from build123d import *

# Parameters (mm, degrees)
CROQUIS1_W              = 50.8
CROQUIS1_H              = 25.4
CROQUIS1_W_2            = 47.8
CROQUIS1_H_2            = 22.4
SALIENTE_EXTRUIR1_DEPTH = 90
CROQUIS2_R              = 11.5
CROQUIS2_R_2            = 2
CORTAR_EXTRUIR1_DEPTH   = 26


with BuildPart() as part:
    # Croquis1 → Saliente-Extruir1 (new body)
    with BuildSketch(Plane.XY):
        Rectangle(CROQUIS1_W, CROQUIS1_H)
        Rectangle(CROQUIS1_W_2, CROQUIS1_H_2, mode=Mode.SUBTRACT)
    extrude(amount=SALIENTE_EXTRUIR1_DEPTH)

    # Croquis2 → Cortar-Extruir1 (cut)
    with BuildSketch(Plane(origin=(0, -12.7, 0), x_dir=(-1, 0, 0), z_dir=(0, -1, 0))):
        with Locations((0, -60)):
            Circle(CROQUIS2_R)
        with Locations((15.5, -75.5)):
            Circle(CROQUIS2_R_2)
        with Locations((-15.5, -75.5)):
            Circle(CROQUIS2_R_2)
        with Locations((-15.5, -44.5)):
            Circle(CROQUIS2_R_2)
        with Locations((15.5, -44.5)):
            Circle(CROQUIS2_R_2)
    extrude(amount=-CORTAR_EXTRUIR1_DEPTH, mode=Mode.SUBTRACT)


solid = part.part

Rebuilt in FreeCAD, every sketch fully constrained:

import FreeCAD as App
import Part
import Sketcher
from FreeCAD import Vector
Q = App.Units.Quantity

doc = App.newDocument("Part")
params = doc.addObject("Spreadsheet::Sheet", "Params")
for row, (alias, value) in enumerate([
    ("sketch1_width", "50.8 mm"),
    ("sketch1_width2", "47.8 mm"),
    ("sketch1_height", "25.4 mm"),
    ("sketch1_height2", "22.4 mm"),
    ("pad1_length", "90 mm"),
    ("sketch2_diameter", "23 mm"),
    ("sketch2_diameter2", "4 mm"),
    ("pocket1_length", "26 mm"),
], start=1):
    params.set(f"A{row}", alias)
    params.set(f"B{row}", "=" + value)
    params.setAlias(f"B{row}", alias)

body = doc.addObject("PartDesign::Body", "Body")

# Sketch on XY plane
sketch1 = doc.addObject("Sketcher::SketchObject", "Sketch")
body.addObject(sketch1)
sketch1.AttachmentSupport = (doc.XY_Plane, [""])
sketch1.MapMode = "FlatFace"
sketch1.addGeometry([
    Part.LineSegment(Vector(-25, 13, 0), Vector(-25, -13, 0)),  # 0
    Part.LineSegment(Vector(-25, -13, 0), Vector(25, -13, 0)),  # 1
    Part.LineSegment(Vector(25, -13, 0), Vector(25, 13, 0)),  # 2
    Part.LineSegment(Vector(25, 13, 0), Vector(-25, 13, 0)),  # 3
    Part.LineSegment(Vector(24, -11, 0), Vector(-24, -11, 0)),  # 4
    Part.LineSegment(Vector(-24, -11, 0), Vector(-24, 11, 0)),  # 5
    Part.LineSegment(Vector(-24, 11, 0), Vector(24, 11, 0)),  # 6
    Part.LineSegment(Vector(24, 11, 0), Vector(24, -11, 0)),  # 7
], False)
sketch1.addConstraint([
    Sketcher.Constraint("Coincident", 0, 2, 1, 1),
    Sketcher.Constraint("Coincident", 1, 2, 2, 1),
    Sketcher.Constraint("Coincident", 2, 2, 3, 1),
    Sketcher.Constraint("Coincident", 3, 2, 0, 1),
    Sketcher.Constraint("Coincident", 4, 2, 5, 1),
    Sketcher.Constraint("Coincident", 5, 2, 6, 1),
    Sketcher.Constraint("Coincident", 6, 2, 7, 1),
    Sketcher.Constraint("Coincident", 7, 2, 4, 1),
    Sketcher.Constraint("Vertical", 0),
    Sketcher.Constraint("Horizontal", 1),
    Sketcher.Constraint("Vertical", 2),
    Sketcher.Constraint("Horizontal", 3),
    Sketcher.Constraint("Horizontal", 4),
    Sketcher.Constraint("Vertical", 5),
    Sketcher.Constraint("Horizontal", 6),
    Sketcher.Constraint("Vertical", 7),
    Sketcher.Constraint("Symmetric", 0, 2, 2, 2, -1, 1),
    Sketcher.Constraint("Symmetric", 4, 2, 6, 2, -1, 1),
    Sketcher.Constraint("DistanceX", 1, 1, 1, 2, Q("50.8 mm")),
    Sketcher.Constraint("DistanceX", 4, 2, 4, 1, Q("47.8 mm")),
    Sketcher.Constraint("DistanceY", 0, 2, 0, 1, Q("25.4 mm")),
    Sketcher.Constraint("DistanceY", 5, 1, 5, 2, Q("22.4 mm")),
])
sketch1.setExpression("Constraints[18]", "Params.sketch1_width")
sketch1.setExpression("Constraints[19]", "Params.sketch1_width2")
sketch1.setExpression("Constraints[20]", "Params.sketch1_height")
sketch1.setExpression("Constraints[21]", "Params.sketch1_height2")
pad1 = doc.addObject("PartDesign::Pad", "Pad")
body.addObject(pad1)
pad1.Profile = sketch1
pad1.setExpression("Length", "Params.pad1_length")

# Sketch on XZ plane
sketch2 = doc.addObject("Sketcher::SketchObject", "Sketch001")
body.addObject(sketch2)
sketch2.AttachmentSupport = (doc.XZ_Plane, [""])
sketch2.MapMode = "FlatFace"
sketch2.AttachmentOffset = App.Placement(Vector(0, 0, 12.7), App.Rotation())
sketch2.addGeometry([
    Part.Circle(Vector(0, 60, 0), Vector(0, 0, 1), 11.5),  # 0
    Part.Circle(Vector(-15.5, 75.5, 0), Vector(0, 0, 1), 2),  # 1
    Part.Circle(Vector(15.5, 75.5, 0), Vector(0, 0, 1), 2),  # 2
    Part.Circle(Vector(15.5, 44.5, 0), Vector(0, 0, 1), 2),  # 3
    Part.Circle(Vector(-15.5, 44.5, 0), Vector(0, 0, 1), 2),  # 4
], False)
sketch2.addConstraint([
    Sketcher.Constraint("Equal", 1, 2),
    Sketcher.Constraint("Equal", 2, 3),
    Sketcher.Constraint("Equal", 3, 4),
    Sketcher.Constraint("Symmetric", 1, 3, 2, 3, -2),
    Sketcher.Constraint("Symmetric", 3, 3, 4, 3, -2),
    Sketcher.Constraint("PointOnObject", 0, 3, -2),
    Sketcher.Constraint("Vertical", 2, 3, 3, 3),
    Sketcher.Constraint("Diameter", 0, Q("23 mm")),
    Sketcher.Constraint("Diameter", 1, Q("4 mm")),
    Sketcher.Constraint("DistanceY", -1, 1, 0, 3, Q("60 mm")),
    Sketcher.Constraint("DistanceX", 1, 3, 2, 3, Q("31 mm")),
    Sketcher.Constraint("DistanceY", 3, 3, 2, 3, Q("31 mm")),
    Sketcher.Constraint("DistanceY", -1, 1, 1, 3, Q("75.5 mm")),
])
sketch2.setExpression("Constraints[7]", "Params.sketch2_diameter")
sketch2.setExpression("Constraints[8]", "Params.sketch2_diameter2")
pocket1 = doc.addObject("PartDesign::Pocket", "Pocket")
body.addObject(pocket1)
pocket1.Profile = sketch2
pocket1.setExpression("Length", "Params.pocket1_length")

doc.recompute()
